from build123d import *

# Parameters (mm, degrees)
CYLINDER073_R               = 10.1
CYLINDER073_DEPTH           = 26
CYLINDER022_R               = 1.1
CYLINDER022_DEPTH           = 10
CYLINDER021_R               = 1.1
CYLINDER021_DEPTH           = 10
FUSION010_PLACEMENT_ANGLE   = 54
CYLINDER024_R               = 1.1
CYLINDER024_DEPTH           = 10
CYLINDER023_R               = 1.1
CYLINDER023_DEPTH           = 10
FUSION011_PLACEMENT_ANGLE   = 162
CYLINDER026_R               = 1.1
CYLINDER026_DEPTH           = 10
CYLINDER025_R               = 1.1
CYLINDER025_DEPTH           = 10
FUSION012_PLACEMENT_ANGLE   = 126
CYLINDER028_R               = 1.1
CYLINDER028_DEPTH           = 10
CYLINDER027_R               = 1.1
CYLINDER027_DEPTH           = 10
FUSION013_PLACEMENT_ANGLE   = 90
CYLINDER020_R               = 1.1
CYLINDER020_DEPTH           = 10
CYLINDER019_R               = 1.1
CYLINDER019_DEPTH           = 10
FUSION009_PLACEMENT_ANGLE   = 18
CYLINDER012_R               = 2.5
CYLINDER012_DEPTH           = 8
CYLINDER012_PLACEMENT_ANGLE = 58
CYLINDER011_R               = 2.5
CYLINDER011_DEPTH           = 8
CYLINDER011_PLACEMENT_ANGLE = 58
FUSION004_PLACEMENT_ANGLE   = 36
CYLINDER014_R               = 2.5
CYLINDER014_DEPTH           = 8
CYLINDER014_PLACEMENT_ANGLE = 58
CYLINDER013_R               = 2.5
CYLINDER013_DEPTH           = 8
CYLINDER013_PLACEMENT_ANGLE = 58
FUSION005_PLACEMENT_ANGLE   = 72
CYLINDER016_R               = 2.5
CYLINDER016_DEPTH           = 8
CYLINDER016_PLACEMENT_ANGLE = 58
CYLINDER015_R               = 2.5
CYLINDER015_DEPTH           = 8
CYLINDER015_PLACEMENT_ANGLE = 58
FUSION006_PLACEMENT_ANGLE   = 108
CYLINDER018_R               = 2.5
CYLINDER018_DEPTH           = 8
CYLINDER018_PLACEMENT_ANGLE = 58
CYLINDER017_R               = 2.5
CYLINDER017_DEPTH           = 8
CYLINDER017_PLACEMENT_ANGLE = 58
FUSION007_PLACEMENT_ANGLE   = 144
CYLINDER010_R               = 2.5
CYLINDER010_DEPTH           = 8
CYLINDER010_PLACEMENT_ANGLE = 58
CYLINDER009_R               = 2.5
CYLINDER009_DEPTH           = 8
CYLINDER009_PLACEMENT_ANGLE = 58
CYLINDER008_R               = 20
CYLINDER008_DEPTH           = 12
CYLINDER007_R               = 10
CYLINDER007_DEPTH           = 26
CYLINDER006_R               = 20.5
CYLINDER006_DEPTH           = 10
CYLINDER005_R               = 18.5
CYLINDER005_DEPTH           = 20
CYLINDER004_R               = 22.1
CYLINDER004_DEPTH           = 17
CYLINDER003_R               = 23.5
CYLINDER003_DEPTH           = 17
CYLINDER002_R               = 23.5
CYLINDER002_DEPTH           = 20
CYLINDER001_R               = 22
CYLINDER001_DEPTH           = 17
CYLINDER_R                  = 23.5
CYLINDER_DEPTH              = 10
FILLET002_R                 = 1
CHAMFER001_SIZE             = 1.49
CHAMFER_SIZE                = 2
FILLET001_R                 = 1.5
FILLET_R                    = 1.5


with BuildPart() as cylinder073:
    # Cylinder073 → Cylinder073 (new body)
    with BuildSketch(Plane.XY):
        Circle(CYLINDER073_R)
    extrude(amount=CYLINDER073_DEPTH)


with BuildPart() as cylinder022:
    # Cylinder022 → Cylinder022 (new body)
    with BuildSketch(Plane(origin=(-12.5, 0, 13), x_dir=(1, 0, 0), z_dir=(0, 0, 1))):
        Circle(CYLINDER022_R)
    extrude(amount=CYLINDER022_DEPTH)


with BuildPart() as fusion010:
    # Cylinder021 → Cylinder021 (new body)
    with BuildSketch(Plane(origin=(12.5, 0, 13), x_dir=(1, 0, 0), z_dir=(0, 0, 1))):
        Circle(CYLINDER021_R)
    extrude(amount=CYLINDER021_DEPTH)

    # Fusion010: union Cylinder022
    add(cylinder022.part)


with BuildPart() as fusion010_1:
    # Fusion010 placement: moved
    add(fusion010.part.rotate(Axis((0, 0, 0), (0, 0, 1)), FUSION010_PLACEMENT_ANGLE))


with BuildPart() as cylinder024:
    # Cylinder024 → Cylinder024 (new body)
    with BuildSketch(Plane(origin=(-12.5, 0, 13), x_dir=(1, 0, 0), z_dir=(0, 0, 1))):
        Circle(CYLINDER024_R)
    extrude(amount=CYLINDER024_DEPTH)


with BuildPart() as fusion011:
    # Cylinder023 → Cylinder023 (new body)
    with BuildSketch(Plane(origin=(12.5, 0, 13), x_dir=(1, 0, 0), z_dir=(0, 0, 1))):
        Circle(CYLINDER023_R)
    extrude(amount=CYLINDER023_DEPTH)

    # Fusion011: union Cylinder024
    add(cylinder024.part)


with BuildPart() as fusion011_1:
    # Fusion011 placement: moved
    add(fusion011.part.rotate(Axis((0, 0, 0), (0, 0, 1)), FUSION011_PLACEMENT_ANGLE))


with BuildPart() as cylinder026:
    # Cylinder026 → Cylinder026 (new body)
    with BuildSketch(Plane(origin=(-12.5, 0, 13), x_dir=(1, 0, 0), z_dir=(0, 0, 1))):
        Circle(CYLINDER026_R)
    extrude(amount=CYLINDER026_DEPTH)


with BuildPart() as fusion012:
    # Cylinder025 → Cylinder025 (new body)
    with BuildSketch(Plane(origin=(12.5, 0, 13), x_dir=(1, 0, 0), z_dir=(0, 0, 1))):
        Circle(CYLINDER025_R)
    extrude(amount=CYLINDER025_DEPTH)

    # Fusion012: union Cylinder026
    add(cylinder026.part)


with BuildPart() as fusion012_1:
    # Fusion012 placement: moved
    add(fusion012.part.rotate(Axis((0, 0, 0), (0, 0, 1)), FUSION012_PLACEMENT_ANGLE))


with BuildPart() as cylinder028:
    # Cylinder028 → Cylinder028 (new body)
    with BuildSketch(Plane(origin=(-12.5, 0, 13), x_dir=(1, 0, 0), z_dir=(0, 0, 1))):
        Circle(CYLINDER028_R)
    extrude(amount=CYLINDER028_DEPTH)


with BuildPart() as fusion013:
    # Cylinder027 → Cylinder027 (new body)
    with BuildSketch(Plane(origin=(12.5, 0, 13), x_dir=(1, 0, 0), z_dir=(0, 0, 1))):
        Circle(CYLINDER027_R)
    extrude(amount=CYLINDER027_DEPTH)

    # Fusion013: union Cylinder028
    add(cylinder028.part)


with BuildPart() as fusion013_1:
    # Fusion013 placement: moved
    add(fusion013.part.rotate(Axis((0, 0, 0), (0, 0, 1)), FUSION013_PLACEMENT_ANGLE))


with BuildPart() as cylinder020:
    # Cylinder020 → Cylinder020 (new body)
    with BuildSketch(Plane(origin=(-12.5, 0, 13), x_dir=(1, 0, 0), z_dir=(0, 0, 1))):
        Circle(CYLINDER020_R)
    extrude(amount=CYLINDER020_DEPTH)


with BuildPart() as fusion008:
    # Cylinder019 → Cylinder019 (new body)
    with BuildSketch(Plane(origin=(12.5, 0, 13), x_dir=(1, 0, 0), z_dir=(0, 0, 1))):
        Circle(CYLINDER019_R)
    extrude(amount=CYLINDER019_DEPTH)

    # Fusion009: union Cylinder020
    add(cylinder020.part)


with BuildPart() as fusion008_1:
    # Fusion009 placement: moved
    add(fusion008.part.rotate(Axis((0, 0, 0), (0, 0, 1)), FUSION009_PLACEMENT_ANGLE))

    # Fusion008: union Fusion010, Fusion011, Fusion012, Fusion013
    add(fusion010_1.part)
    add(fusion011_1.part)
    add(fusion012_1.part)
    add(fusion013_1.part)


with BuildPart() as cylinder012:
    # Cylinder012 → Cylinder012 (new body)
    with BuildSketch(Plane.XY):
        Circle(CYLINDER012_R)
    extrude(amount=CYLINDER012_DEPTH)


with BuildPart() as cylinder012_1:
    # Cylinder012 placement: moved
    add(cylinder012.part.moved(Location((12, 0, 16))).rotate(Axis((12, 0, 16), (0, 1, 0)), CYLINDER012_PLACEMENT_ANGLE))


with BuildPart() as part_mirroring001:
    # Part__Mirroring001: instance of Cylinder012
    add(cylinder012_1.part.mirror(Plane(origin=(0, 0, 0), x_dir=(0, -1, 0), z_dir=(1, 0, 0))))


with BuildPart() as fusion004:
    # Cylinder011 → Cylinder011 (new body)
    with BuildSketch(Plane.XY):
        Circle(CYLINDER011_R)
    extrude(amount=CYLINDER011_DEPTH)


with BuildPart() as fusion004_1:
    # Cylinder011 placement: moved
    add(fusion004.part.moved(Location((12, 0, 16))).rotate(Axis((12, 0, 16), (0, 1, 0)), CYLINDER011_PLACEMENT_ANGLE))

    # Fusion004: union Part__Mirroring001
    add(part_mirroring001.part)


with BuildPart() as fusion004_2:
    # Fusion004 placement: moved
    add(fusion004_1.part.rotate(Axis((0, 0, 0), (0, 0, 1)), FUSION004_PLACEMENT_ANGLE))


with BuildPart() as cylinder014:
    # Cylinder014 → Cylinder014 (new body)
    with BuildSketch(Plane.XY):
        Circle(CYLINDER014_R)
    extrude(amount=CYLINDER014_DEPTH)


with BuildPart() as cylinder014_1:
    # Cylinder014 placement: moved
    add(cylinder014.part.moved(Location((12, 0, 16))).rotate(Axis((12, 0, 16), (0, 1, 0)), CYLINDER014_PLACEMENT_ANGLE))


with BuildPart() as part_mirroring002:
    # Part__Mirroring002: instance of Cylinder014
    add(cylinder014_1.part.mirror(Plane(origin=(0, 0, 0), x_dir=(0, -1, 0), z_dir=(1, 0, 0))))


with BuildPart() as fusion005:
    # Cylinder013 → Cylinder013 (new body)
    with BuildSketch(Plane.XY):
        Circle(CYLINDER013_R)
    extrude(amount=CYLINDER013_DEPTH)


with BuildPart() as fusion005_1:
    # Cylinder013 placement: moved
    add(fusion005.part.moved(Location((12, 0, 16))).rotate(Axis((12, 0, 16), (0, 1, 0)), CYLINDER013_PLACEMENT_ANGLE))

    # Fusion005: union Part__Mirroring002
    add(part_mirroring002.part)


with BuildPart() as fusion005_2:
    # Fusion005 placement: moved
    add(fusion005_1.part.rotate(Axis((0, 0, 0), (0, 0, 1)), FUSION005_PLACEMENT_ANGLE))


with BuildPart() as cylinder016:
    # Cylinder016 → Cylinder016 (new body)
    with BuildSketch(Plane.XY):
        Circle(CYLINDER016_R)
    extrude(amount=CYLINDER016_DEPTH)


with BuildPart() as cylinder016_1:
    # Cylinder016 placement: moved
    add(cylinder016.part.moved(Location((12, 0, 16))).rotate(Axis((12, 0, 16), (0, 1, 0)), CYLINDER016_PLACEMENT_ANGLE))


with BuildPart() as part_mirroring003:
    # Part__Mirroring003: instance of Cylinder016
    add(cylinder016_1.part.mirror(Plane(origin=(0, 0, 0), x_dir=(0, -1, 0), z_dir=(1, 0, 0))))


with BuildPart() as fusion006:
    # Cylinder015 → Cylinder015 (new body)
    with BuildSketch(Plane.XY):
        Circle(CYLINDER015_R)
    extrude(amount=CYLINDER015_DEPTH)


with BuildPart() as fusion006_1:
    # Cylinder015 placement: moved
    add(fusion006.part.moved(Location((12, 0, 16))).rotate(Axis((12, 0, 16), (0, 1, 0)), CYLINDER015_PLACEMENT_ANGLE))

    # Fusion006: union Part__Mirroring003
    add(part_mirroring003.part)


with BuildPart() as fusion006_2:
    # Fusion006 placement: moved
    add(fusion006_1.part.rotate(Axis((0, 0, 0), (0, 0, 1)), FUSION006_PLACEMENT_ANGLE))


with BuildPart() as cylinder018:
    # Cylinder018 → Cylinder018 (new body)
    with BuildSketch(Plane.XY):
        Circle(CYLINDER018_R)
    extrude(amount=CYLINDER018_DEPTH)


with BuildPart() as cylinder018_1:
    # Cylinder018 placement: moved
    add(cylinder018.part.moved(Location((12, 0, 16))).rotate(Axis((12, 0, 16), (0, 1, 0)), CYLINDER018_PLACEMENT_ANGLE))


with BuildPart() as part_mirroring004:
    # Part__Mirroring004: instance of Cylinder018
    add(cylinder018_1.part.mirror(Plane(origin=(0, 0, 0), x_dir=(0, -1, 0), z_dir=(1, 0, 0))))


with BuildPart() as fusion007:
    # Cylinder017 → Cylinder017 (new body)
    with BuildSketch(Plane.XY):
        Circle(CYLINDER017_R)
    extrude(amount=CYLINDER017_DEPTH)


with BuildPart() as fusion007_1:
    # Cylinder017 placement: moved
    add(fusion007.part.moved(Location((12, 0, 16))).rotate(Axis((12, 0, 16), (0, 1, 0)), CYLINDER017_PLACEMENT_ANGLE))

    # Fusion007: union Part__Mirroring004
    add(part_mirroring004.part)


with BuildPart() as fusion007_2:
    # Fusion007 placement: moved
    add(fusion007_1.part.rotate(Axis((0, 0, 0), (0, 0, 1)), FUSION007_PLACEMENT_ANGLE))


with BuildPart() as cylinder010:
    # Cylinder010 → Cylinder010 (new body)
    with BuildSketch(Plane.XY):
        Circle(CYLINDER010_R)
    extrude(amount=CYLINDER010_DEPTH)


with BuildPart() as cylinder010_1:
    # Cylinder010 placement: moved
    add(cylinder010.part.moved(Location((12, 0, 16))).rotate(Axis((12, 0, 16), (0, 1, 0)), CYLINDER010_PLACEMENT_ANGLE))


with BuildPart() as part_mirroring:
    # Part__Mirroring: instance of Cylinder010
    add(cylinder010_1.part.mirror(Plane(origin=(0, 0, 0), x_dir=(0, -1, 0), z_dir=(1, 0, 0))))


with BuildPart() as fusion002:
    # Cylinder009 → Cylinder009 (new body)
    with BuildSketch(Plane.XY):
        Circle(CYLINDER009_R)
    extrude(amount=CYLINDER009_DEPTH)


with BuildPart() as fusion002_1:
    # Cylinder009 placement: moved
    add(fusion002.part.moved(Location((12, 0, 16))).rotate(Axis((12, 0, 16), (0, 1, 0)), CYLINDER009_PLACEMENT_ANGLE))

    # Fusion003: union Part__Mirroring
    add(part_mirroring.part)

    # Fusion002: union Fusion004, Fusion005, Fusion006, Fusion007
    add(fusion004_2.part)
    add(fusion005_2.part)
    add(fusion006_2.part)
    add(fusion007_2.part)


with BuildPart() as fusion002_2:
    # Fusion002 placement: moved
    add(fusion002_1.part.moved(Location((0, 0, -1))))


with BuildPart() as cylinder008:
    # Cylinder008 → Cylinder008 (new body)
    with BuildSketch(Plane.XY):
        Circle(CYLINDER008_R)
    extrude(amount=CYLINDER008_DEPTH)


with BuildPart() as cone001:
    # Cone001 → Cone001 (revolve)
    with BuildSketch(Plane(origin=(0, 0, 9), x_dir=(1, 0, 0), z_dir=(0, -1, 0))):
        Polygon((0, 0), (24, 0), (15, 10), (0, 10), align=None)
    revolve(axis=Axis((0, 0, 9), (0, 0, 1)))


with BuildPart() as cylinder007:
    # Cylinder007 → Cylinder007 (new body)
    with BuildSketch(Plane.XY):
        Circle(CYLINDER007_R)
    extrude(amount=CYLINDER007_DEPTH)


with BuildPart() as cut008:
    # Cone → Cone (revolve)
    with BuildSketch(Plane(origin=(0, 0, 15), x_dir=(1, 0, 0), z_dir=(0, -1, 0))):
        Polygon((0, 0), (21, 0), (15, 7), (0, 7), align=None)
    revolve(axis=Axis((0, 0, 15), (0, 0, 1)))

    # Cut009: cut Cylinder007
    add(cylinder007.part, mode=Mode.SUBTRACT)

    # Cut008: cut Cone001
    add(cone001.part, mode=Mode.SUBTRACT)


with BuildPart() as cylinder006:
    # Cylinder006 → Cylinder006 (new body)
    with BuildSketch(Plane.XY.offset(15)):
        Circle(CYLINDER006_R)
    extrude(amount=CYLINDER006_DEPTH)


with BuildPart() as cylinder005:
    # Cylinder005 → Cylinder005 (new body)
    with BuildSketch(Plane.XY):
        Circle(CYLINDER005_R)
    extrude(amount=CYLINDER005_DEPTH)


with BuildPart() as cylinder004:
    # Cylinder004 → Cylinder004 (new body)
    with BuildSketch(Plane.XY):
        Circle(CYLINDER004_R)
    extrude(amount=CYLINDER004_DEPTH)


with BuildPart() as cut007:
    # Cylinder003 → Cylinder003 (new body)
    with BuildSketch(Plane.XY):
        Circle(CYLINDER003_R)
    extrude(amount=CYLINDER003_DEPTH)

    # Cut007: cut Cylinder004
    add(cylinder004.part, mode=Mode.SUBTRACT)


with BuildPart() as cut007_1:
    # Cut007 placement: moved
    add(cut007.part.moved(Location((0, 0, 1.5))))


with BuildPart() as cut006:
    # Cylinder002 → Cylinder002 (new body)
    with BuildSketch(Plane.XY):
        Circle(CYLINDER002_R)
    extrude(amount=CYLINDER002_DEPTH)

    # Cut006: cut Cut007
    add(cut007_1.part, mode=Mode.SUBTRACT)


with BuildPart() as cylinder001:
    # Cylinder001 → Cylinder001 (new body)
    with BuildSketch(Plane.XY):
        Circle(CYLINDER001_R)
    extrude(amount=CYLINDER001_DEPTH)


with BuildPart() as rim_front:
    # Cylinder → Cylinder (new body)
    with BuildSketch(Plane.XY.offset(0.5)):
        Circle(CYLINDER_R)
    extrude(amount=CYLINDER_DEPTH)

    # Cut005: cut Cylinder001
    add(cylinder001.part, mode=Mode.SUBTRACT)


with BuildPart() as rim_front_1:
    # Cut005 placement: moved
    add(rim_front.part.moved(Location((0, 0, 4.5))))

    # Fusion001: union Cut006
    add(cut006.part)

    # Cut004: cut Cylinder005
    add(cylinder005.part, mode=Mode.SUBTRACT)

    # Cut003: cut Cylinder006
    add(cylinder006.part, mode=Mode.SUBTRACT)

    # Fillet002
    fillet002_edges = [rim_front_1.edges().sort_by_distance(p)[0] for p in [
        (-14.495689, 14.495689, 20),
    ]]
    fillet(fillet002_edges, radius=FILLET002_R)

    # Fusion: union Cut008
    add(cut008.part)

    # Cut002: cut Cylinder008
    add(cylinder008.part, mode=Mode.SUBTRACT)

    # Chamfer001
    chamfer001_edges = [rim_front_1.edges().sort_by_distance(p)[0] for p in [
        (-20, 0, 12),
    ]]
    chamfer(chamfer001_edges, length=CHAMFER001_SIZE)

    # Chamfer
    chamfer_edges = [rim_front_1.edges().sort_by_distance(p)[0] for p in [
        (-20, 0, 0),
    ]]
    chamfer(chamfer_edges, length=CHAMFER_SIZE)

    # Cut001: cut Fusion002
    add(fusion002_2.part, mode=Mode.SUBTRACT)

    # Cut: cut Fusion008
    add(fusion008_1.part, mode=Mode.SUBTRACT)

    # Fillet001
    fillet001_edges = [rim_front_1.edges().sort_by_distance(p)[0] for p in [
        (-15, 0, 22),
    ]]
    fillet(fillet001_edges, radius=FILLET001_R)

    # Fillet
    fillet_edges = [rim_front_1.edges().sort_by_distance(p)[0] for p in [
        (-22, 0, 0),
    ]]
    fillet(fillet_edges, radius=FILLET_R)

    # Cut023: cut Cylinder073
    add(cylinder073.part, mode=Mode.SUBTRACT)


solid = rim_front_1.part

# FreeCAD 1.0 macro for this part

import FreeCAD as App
import Part
import Sketcher


def edges_at(feature, points):
    """Names of the edges that pass closest to the given points."""
    edges = feature.Shape.Edges
    near = lambda p: min(range(len(edges)), key=lambda i: edges[i].distToShape(Part.Vertex(*p))[0])
    return sorted({f"Edge{near(p) + 1}" for p in points})


def add_polygon(sketch, points):
    """Adds a closed chain of lines whose ends are joined by coincident constraints."""
    first, n = sketch.GeometryCount, len(points)
    for a, b in zip(points, points[1:] + points[:1]):
        sketch.addGeometry(Part.LineSegment(App.Vector(*a, 0), App.Vector(*b, 0)), False)
    for i in range(n):
        sketch.addConstraint(Sketcher.Constraint("Coincident", first + i, 2, first + (i + 1) % n, 1))

doc = App.newDocument("Part")
body = doc.addObject("PartDesign::Body", "Body")

sketch1 = body.newObject("Sketcher::SketchObject", "Sketch")
sketch1.AttachmentSupport = (doc.getObject("XY_Plane"), [""])
sketch1.MapMode = "FlatFace"
sketch1.addGeometry(Part.Circle(App.Vector(0, 0, 0), App.Vector(0, 0, 1), 10), False)
sketch1.addConstraint(Sketcher.Constraint("Coincident", 0, 3, -1, 1))
sketch1.addConstraint(Sketcher.Constraint("Diameter", 0, 20.2))
pad1 = body.newObject("PartDesign::Pad", "Pad")
pad1.Profile = sketch1
pad1.Length = 26
body2 = doc.addObject("PartDesign::Body", "Body001")

sketch2 = body2.newObject("Sketcher::SketchObject", "Sketch001")
sketch2.AttachmentSupport = (doc.getObject("XY_Plane001"), [""])
sketch2.MapMode = "FlatFace"
sketch2.AttachmentOffset = App.Placement(App.Vector(0, 0, 13), App.Rotation())
sketch2.addGeometry(Part.Circle(App.Vector(-12.5, 0, 0), App.Vector(0, 0, 1), 1.1), False)
sketch2.addConstraint(Sketcher.Constraint("PointOnObject", 0, 3, -1))
sketch2.addConstraint(Sketcher.Constraint("Diameter", 0, 2.2))
sketch2.addConstraint(Sketcher.Constraint("DistanceX", 0, 3, -1, 1, 12.5))
pad2 = body2.newObject("PartDesign::Pad", "Pad001")
pad2.Profile = sketch2
pad2.Length = 10
body3 = doc.addObject("PartDesign::Body", "Body002")
body3.AllowCompound = True

sketch3 = body3.newObject("Sketcher::SketchObject", "Sketch002")
sketch3.AttachmentSupport = (doc.getObject("XY_Plane002"), [""])
sketch3.MapMode = "FlatFace"
sketch3.AttachmentOffset = App.Placement(App.Vector(0, 0, 13), App.Rotation())
sketch3.addGeometry(Part.Circle(App.Vector(12.5, 0, 0), App.Vector(0, 0, 1), 1.1), False)
sketch3.addConstraint(Sketcher.Constraint("PointOnObject", 0, 3, -1))
sketch3.addConstraint(Sketcher.Constraint("Diameter", 0, 2.2))
sketch3.addConstraint(Sketcher.Constraint("DistanceX", -1, 1, 0, 3, 12.5))
pad3 = body3.newObject("PartDesign::Pad", "Pad002")
pad3.Profile = sketch3
pad3.Length = 10
doc.recompute()

boolean = body3.newObject("PartDesign::Boolean", "Boolean")
boolean.Type = "Fuse"
boolean.addObjects([body2])
body4 = doc.addObject("PartDesign::Body", "Body003")
body4.AllowCompound = True
doc.recompute()

body3.Placement = App.Placement(App.Vector(0, 0, 0), App.Rotation(App.Vector(0, 0, 1), 54))
boolean2 = body4.newObject("PartDesign::Boolean", "Boolean001")
boolean2.Type = "Fuse"
boolean2.addObjects([body3])
body5 = doc.addObject("PartDesign::Body", "Body004")

sketch4 = body5.newObject("Sketcher::SketchObject", "Sketch003")
sketch4.AttachmentSupport = (doc.getObject("XY_Plane004"), [""])
sketch4.MapMode = "FlatFace"
sketch4.AttachmentOffset = App.Placement(App.Vector(0, 0, 13), App.Rotation())
sketch4.addGeometry(Part.Circle(App.Vector(-12.5, 0, 0), App.Vector(0, 0, 1), 1.1), False)
sketch4.addConstraint(Sketcher.Constraint("PointOnObject", 0, 3, -1))
sketch4.addConstraint(Sketcher.Constraint("Diameter", 0, 2.2))
sketch4.addConstraint(Sketcher.Constraint("DistanceX", 0, 3, -1, 1, 12.5))
pad4 = body5.newObject("PartDesign::Pad", "Pad003")
pad4.Profile = sketch4
pad4.Length = 10
body6 = doc.addObject("PartDesign::Body", "Body005")
body6.AllowCompound = True

sketch5 = body6.newObject("Sketcher::SketchObject", "Sketch004")
sketch5.AttachmentSupport = (doc.getObject("XY_Plane005"), [""])
sketch5.MapMode = "FlatFace"
sketch5.AttachmentOffset = App.Placement(App.Vector(0, 0, 13), App.Rotation())
sketch5.addGeometry(Part.Circle(App.Vector(12.5, 0, 0), App.Vector(0, 0, 1), 1.1), False)
sketch5.addConstraint(Sketcher.Constraint("PointOnObject", 0, 3, -1))
sketch5.addConstraint(Sketcher.Constraint("Diameter", 0, 2.2))
sketch5.addConstraint(Sketcher.Constraint("DistanceX", -1, 1, 0, 3, 12.5))
pad5 = body6.newObject("PartDesign::Pad", "Pad004")
pad5.Profile = sketch5
pad5.Length = 10
doc.recompute()

boolean3 = body6.newObject("PartDesign::Boolean", "Boolean002")
boolean3.Type = "Fuse"
boolean3.addObjects([body5])
body7 = doc.addObject("PartDesign::Body", "Body006")
body7.AllowCompound = True
doc.recompute()

body6.Placement = App.Placement(App.Vector(0, 0, 0), App.Rotation(App.Vector(0, 0, 1), 162))
boolean4 = body7.newObject("PartDesign::Boolean", "Boolean003")
boolean4.Type = "Fuse"
boolean4.addObjects([body6])
body8 = doc.addObject("PartDesign::Body", "Body007")

sketch6 = body8.newObject("Sketcher::SketchObject", "Sketch005")
sketch6.AttachmentSupport = (doc.getObject("XY_Plane007"), [""])
sketch6.MapMode = "FlatFace"
sketch6.AttachmentOffset = App.Placement(App.Vector(0, 0, 13), App.Rotation())
sketch6.addGeometry(Part.Circle(App.Vector(-12.5, 0, 0), App.Vector(0, 0, 1), 1.1), False)
sketch6.addConstraint(Sketcher.Constraint("PointOnObject", 0, 3, -1))
sketch6.addConstraint(Sketcher.Constraint("Diameter", 0, 2.2))
sketch6.addConstraint(Sketcher.Constraint("DistanceX", 0, 3, -1, 1, 12.5))
pad6 = body8.newObject("PartDesign::Pad", "Pad005")
pad6.Profile = sketch6
pad6.Length = 10
body9 = doc.addObject("PartDesign::Body", "Body008")
body9.AllowCompound = True

sketch7 = body9.newObject("Sketcher::SketchObject", "Sketch006")
sketch7.AttachmentSupport = (doc.getObject("XY_Plane008"), [""])
sketch7.MapMode = "FlatFace"
sketch7.AttachmentOffset = App.Placement(App.Vector(0, 0, 13), App.Rotation())
sketch7.addGeometry(Part.Circle(App.Vector(12.5, 0, 0), App.Vector(0, 0, 1), 1.1), False)
sketch7.addConstraint(Sketcher.Constraint("PointOnObject", 0, 3, -1))
sketch7.addConstraint(Sketcher.Constraint("Diameter", 0, 2.2))
sketch7.addConstraint(Sketcher.Constraint("DistanceX", -1, 1, 0, 3, 12.5))
pad7 = body9.newObject("PartDesign::Pad", "Pad006")
pad7.Profile = sketch7
pad7.Length = 10
doc.recompute()

boolean5 = body9.newObject("PartDesign::Boolean", "Boolean004")
boolean5.Type = "Fuse"
boolean5.addObjects([body8])
body10 = doc.addObject("PartDesign::Body", "Body009")
body10.AllowCompound = True
doc.recompute()

body9.Placement = App.Placement(App.Vector(0, 0, 0), App.Rotation(App.Vector(0, 0, 1), 126))
boolean6 = body10.newObject("PartDesign::Boolean", "Boolean005")
boolean6.Type = "Fuse"
boolean6.addObjects([body9])
body11 = doc.addObject("PartDesign::Body", "Body010")

sketch8 = body11.newObject("Sketcher::SketchObject", "Sketch007")
sketch8.AttachmentSupport = (doc.getObject("XY_Plane010"), [""])
sketch8.MapMode = "FlatFace"
sketch8.AttachmentOffset = App.Placement(App.Vector(0, 0, 13), App.Rotation())
sketch8.addGeometry(Part.Circle(App.Vector(-12.5, 0, 0), App.Vector(0, 0, 1), 1.1), False)
sketch8.addConstraint(Sketcher.Constraint("PointOnObject", 0, 3, -1))
sketch8.addConstraint(Sketcher.Constraint("Diameter", 0, 2.2))
sketch8.addConstraint(Sketcher.Constraint("DistanceX", 0, 3, -1, 1, 12.5))
pad8 = body11.newObject("PartDesign::Pad", "Pad007")
pad8.Profile = sketch8
pad8.Length = 10
body12 = doc.addObject("PartDesign::Body", "Body011")
body12.AllowCompound = True

sketch9 = body12.newObject("Sketcher::SketchObject", "Sketch008")
sketch9.AttachmentSupport = (doc.getObject("XY_Plane011"), [""])
sketch9.MapMode = "FlatFace"
sketch9.AttachmentOffset = App.Placement(App.Vector(0, 0, 13), App.Rotation())
sketch9.addGeometry(Part.Circle(App.Vector(12.5, 0, 0), App.Vector(0, 0, 1), 1.1), False)
sketch9.addConstraint(Sketcher.Constraint("PointOnObject", 0, 3, -1))
sketch9.addConstraint(Sketcher.Constraint("Diameter", 0, 2.2))
sketch9.addConstraint(Sketcher.Constraint("DistanceX", -1, 1, 0, 3, 12.5))
pad9 = body12.newObject("PartDesign::Pad", "Pad008")
pad9.Profile = sketch9
pad9.Length = 10
doc.recompute()

boolean7 = body12.newObject("PartDesign::Boolean", "Boolean006")
boolean7.Type = "Fuse"
boolean7.addObjects([body11])
body13 = doc.addObject("PartDesign::Body", "Body012")
body13.AllowCompound = True
doc.recompute()

body12.Placement = App.Placement(App.Vector(0, 0, 0), App.Rotation(App.Vector(0, 0, 1), 90))
boolean8 = body13.newObject("PartDesign::Boolean", "Boolean007")
boolean8.Type = "Fuse"
boolean8.addObjects([body12])
body14 = doc.addObject("PartDesign::Body", "Body013")

sketch10 = body14.newObject("Sketcher::SketchObject", "Sketch009")
sketch10.AttachmentSupport = (doc.getObject("XY_Plane013"), [""])
sketch10.MapMode = "FlatFace"
sketch10.AttachmentOffset = App.Placement(App.Vector(0, 0, 13), App.Rotation())
sketch10.addGeometry(Part.Circle(App.Vector(-12.5, 0, 0), App.Vector(0, 0, 1), 1.1), False)
sketch10.addConstraint(Sketcher.Constraint("PointOnObject", 0, 3, -1))
sketch10.addConstraint(Sketcher.Constraint("Diameter", 0, 2.2))
sketch10.addConstraint(Sketcher.Constraint("DistanceX", 0, 3, -1, 1, 12.5))
pad10 = body14.newObject("PartDesign::Pad", "Pad009")
pad10.Profile = sketch10
pad10.Length = 10
body15 = doc.addObject("PartDesign::Body", "Body014")
body15.AllowCompound = True

sketch11 = body15.newObject("Sketcher::SketchObject", "Sketch010")
sketch11.AttachmentSupport = (doc.getObject("XY_Plane014"), [""])
sketch11.MapMode = "FlatFace"
sketch11.AttachmentOffset = App.Placement(App.Vector(0, 0, 13), App.Rotation())
sketch11.addGeometry(Part.Circle(App.Vector(12.5, 0, 0), App.Vector(0, 0, 1), 1.1), False)
sketch11.addConstraint(Sketcher.Constraint("PointOnObject", 0, 3, -1))
sketch11.addConstraint(Sketcher.Constraint("Diameter", 0, 2.2))
sketch11.addConstraint(Sketcher.Constraint("DistanceX", -1, 1, 0, 3, 12.5))
pad11 = body15.newObject("PartDesign::Pad", "Pad010")
pad11.Profile = sketch11
pad11.Length = 10
doc.recompute()

boolean9 = body15.newObject("PartDesign::Boolean", "Boolean008")
boolean9.Type = "Fuse"
boolean9.addObjects([body14])
body16 = doc.addObject("PartDesign::Body", "Body015")
body16.AllowCompound = True
doc.recompute()

body15.Placement = App.Placement(App.Vector(0, 0, 0), App.Rotation(App.Vector(0, 0, 1), 18))
boolean10 = body16.newObject("PartDesign::Boolean", "Boolean009")
boolean10.Type = "Fuse"
boolean10.addObjects([body15])
doc.recompute()

boolean11 = body16.newObject("PartDesign::Boolean", "Boolean010")
boolean11.Type = "Fuse"
boolean11.addObjects([body4])
doc.recompute()

boolean12 = body16.newObject("PartDesign::Boolean", "Boolean011")
boolean12.Type = "Fuse"
boolean12.addObjects([body7])
doc.recompute()

boolean13 = body16.newObject("PartDesign::Boolean", "Boolean012")
boolean13.Type = "Fuse"
boolean13.addObjects([body10])
doc.recompute()

boolean14 = body16.newObject("PartDesign::Boolean", "Boolean013")
boolean14.Type = "Fuse"
boolean14.addObjects([body13])
body17 = doc.addObject("PartDesign::Body", "Body016")

sketch12 = body17.newObject("Sketcher::SketchObject", "Sketch011")
sketch12.AttachmentSupport = (doc.getObject("XY_Plane016"), [""])
sketch12.MapMode = "FlatFace"
sketch12.addGeometry(Part.Circle(App.Vector(0, 0, 0), App.Vector(0, 0, 1), 2.5), False)
sketch12.addConstraint(Sketcher.Constraint("Coincident", 0, 3, -1, 1))
sketch12.addConstraint(Sketcher.Constraint("Diameter", 0, 5.0))
pad12 = body17.newObject("PartDesign::Pad", "Pad011")
pad12.Profile = sketch12
pad12.Length = 8
body18 = doc.addObject("PartDesign::Body", "Body017")
doc.recompute()

body17.Placement = App.Placement(App.Vector(12, 0, 16), App.Rotation(App.Vector(0, 1, 0), 58))
boolean15 = body18.newObject("PartDesign::Boolean", "Boolean014")
boolean15.Type = "Fuse"
boolean15.addObjects([body17])
body19 = doc.addObject("PartDesign::Body", "Body018")
doc.recompute()

mirroring = doc.addObject("Part::Mirroring", "Mirroring")
mirroring.Source = body18
mirroring.Base = App.Vector(0, 0, 0)
mirroring.Normal = App.Vector(1, 0, 0)
body19.BaseFeature = mirroring
doc.recompute()
body20 = doc.addObject("PartDesign::Body", "Body019")

sketch13 = body20.newObject("Sketcher::SketchObject", "Sketch012")
sketch13.AttachmentSupport = (doc.getObject("XY_Plane019"), [""])
sketch13.MapMode = "FlatFace"
sketch13.addGeometry(Part.Circle(App.Vector(0, 0, 0), App.Vector(0, 0, 1), 2.5), False)
sketch13.addConstraint(Sketcher.Constraint("Coincident", 0, 3, -1, 1))
sketch13.addConstraint(Sketcher.Constraint("Diameter", 0, 5.0))
pad13 = body20.newObject("PartDesign::Pad", "Pad012")
pad13.Profile = sketch13
pad13.Length = 8
body21 = doc.addObject("PartDesign::Body", "Body020")
body21.AllowCompound = True
doc.recompute()

body20.Placement = App.Placement(App.Vector(12, 0, 16), App.Rotation(App.Vector(0, 1, 0), 58))
boolean16 = body21.newObject("PartDesign::Boolean", "Boolean015")
boolean16.Type = "Fuse"
boolean16.addObjects([body20])
doc.recompute()

boolean17 = body21.newObject("PartDesign::Boolean", "Boolean016")
boolean17.Type = "Fuse"
boolean17.addObjects([body19])
body22 = doc.addObject("PartDesign::Body", "Body021")
body22.AllowCompound = True
doc.recompute()

body21.Placement = App.Placement(App.Vector(0, 0, 0), App.Rotation(App.Vector(0, 0, 1), 36))
boolean18 = body22.newObject("PartDesign::Boolean", "Boolean017")
boolean18.Type = "Fuse"
boolean18.addObjects([body21])
body23 = doc.addObject("PartDesign::Body", "Body022")

sketch14 = body23.newObject("Sketcher::SketchObject", "Sketch013")
sketch14.AttachmentSupport = (doc.getObject("XY_Plane022"), [""])
sketch14.MapMode = "FlatFace"
sketch14.addGeometry(Part.Circle(App.Vector(0, 0, 0), App.Vector(0, 0, 1), 2.5), False)
sketch14.addConstraint(Sketcher.Constraint("Coincident", 0, 3, -1, 1))
sketch14.addConstraint(Sketcher.Constraint("Diameter", 0, 5.0))
pad14 = body23.newObject("PartDesign::Pad", "Pad013")
pad14.Profile = sketch14
pad14.Length = 8
body24 = doc.addObject("PartDesign::Body", "Body023")
doc.recompute()

body23.Placement = App.Placement(App.Vector(12, 0, 16), App.Rotation(App.Vector(0, 1, 0), 58))
boolean19 = body24.newObject("PartDesign::Boolean", "Boolean018")
boolean19.Type = "Fuse"
boolean19.addObjects([body23])
body25 = doc.addObject("PartDesign::Body", "Body024")
doc.recompute()

mirroring2 = doc.addObject("Part::Mirroring", "Mirroring001")
mirroring2.Source = body24
mirroring2.Base = App.Vector(0, 0, 0)
mirroring2.Normal = App.Vector(1, 0, 0)
body25.BaseFeature = mirroring2
doc.recompute()
body26 = doc.addObject("PartDesign::Body", "Body025")

sketch15 = body26.newObject("Sketcher::SketchObject", "Sketch014")
sketch15.AttachmentSupport = (doc.getObject("XY_Plane025"), [""])
sketch15.MapMode = "FlatFace"
sketch15.addGeometry(Part.Circle(App.Vector(0, 0, 0), App.Vector(0, 0, 1), 2.5), False)
sketch15.addConstraint(Sketcher.Constraint("Coincident", 0, 3, -1, 1))
sketch15.addConstraint(Sketcher.Constraint("Diameter", 0, 5.0))
pad15 = body26.newObject("PartDesign::Pad", "Pad014")
pad15.Profile = sketch15
pad15.Length = 8
body27 = doc.addObject("PartDesign::Body", "Body026")
body27.AllowCompound = True
doc.recompute()

body26.Placement = App.Placement(App.Vector(12, 0, 16), App.Rotation(App.Vector(0, 1, 0), 58))
boolean20 = body27.newObject("PartDesign::Boolean", "Boolean019")
boolean20.Type = "Fuse"
boolean20.addObjects([body26])
doc.recompute()

boolean21 = body27.newObject("PartDesign::Boolean", "Boolean020")
boolean21.Type = "Fuse"
boolean21.addObjects([body25])
body28 = doc.addObject("PartDesign::Body", "Body027")
body28.AllowCompound = True
doc.recompute()

body27.Placement = App.Placement(App.Vector(0, 0, 0), App.Rotation(App.Vector(0, 0, 1), 72))
boolean22 = body28.newObject("PartDesign::Boolean", "Boolean021")
boolean22.Type = "Fuse"
boolean22.addObjects([body27])
body29 = doc.addObject("PartDesign::Body", "Body028")

sketch16 = body29.newObject("Sketcher::SketchObject", "Sketch015")
sketch16.AttachmentSupport = (doc.getObject("XY_Plane028"), [""])
sketch16.MapMode = "FlatFace"
sketch16.addGeometry(Part.Circle(App.Vector(0, 0, 0), App.Vector(0, 0, 1), 2.5), False)
sketch16.addConstraint(Sketcher.Constraint("Coincident", 0, 3, -1, 1))
sketch16.addConstraint(Sketcher.Constraint("Diameter", 0, 5.0))
pad16 = body29.newObject("PartDesign::Pad", "Pad015")
pad16.Profile = sketch16
pad16.Length = 8
body30 = doc.addObject("PartDesign::Body", "Body029")
doc.recompute()

body29.Placement = App.Placement(App.Vector(12, 0, 16), App.Rotation(App.Vector(0, 1, 0), 58))
boolean23 = body30.newObject("PartDesign::Boolean", "Boolean022")
boolean23.Type = "Fuse"
boolean23.addObjects([body29])
body31 = doc.addObject("PartDesign::Body", "Body030")
doc.recompute()

mirroring3 = doc.addObject("Part::Mirroring", "Mirroring002")
mirroring3.Source = body30
mirroring3.Base = App.Vector(0, 0, 0)
mirroring3.Normal = App.Vector(1, 0, 0)
body31.BaseFeature = mirroring3
doc.recompute()
body32 = doc.addObject("PartDesign::Body", "Body031")

sketch17 = body32.newObject("Sketcher::SketchObject", "Sketch016")
sketch17.AttachmentSupport = (doc.getObject("XY_Plane031"), [""])
sketch17.MapMode = "FlatFace"
sketch17.addGeometry(Part.Circle(App.Vector(0, 0, 0), App.Vector(0, 0, 1), 2.5), False)
sketch17.addConstraint(Sketcher.Constraint("Coincident", 0, 3, -1, 1))
sketch17.addConstraint(Sketcher.Constraint("Diameter", 0, 5.0))
pad17 = body32.newObject("PartDesign::Pad", "Pad016")
pad17.Profile = sketch17
pad17.Length = 8
body33 = doc.addObject("PartDesign::Body", "Body032")
body33.AllowCompound = True
doc.recompute()

body32.Placement = App.Placement(App.Vector(12, 0, 16), App.Rotation(App.Vector(0, 1, 0), 58))
boolean24 = body33.newObject("PartDesign::Boolean", "Boolean023")
boolean24.Type = "Fuse"
boolean24.addObjects([body32])
doc.recompute()

boolean25 = body33.newObject("PartDesign::Boolean", "Boolean024")
boolean25.Type = "Fuse"
boolean25.addObjects([body31])
body34 = doc.addObject("PartDesign::Body", "Body033")
body34.AllowCompound = True
doc.recompute()

body33.Placement = App.Placement(App.Vector(0, 0, 0), App.Rotation(App.Vector(0, 0, 1), 108))
boolean26 = body34.newObject("PartDesign::Boolean", "Boolean025")
boolean26.Type = "Fuse"
boolean26.addObjects([body33])
body35 = doc.addObject("PartDesign::Body", "Body034")

sketch18 = body35.newObject("Sketcher::SketchObject", "Sketch017")
sketch18.AttachmentSupport = (doc.getObject("XY_Plane034"), [""])
sketch18.MapMode = "FlatFace"
sketch18.addGeometry(Part.Circle(App.Vector(0, 0, 0), App.Vector(0, 0, 1), 2.5), False)
sketch18.addConstraint(Sketcher.Constraint("Coincident", 0, 3, -1, 1))
sketch18.addConstraint(Sketcher.Constraint("Diameter", 0, 5.0))
pad18 = body35.newObject("PartDesign::Pad", "Pad017")
pad18.Profile = sketch18
pad18.Length = 8
body36 = doc.addObject("PartDesign::Body", "Body035")
doc.recompute()

body35.Placement = App.Placement(App.Vector(12, 0, 16), App.Rotation(App.Vector(0, 1, 0), 58))
boolean27 = body36.newObject("PartDesign::Boolean", "Boolean026")
boolean27.Type = "Fuse"
boolean27.addObjects([body35])
body37 = doc.addObject("PartDesign::Body", "Body036")
doc.recompute()

mirroring4 = doc.addObject("Part::Mirroring", "Mirroring003")
mirroring4.Source = body36
mirroring4.Base = App.Vector(0, 0, 0)
mirroring4.Normal = App.Vector(1, 0, 0)
body37.BaseFeature = mirroring4
doc.recompute()
body38 = doc.addObject("PartDesign::Body", "Body037")

sketch19 = body38.newObject("Sketcher::SketchObject", "Sketch018")
sketch19.AttachmentSupport = (doc.getObject("XY_Plane037"), [""])
sketch19.MapMode = "FlatFace"
sketch19.addGeometry(Part.Circle(App.Vector(0, 0, 0), App.Vector(0, 0, 1), 2.5), False)
sketch19.addConstraint(Sketcher.Constraint("Coincident", 0, 3, -1, 1))
sketch19.addConstraint(Sketcher.Constraint("Diameter", 0, 5.0))
pad19 = body38.newObject("PartDesign::Pad", "Pad018")
pad19.Profile = sketch19
pad19.Length = 8
body39 = doc.addObject("PartDesign::Body", "Body038")
body39.AllowCompound = True
doc.recompute()

body38.Placement = App.Placement(App.Vector(12, 0, 16), App.Rotation(App.Vector(0, 1, 0), 58))
boolean28 = body39.newObject("PartDesign::Boolean", "Boolean027")
boolean28.Type = "Fuse"
boolean28.addObjects([body38])
doc.recompute()

boolean29 = body39.newObject("PartDesign::Boolean", "Boolean028")
boolean29.Type = "Fuse"
boolean29.addObjects([body37])
body40 = doc.addObject("PartDesign::Body", "Body039")
body40.AllowCompound = True
doc.recompute()

body39.Placement = App.Placement(App.Vector(0, 0, 0), App.Rotation(App.Vector(0, 0, 1), 144))
boolean30 = body40.newObject("PartDesign::Boolean", "Boolean029")
boolean30.Type = "Fuse"
boolean30.addObjects([body39])
body41 = doc.addObject("PartDesign::Body", "Body040")

sketch20 = body41.newObject("Sketcher::SketchObject", "Sketch019")
sketch20.AttachmentSupport = (doc.getObject("XY_Plane040"), [""])
sketch20.MapMode = "FlatFace"
sketch20.addGeometry(Part.Circle(App.Vector(0, 0, 0), App.Vector(0, 0, 1), 2.5), False)
sketch20.addConstraint(Sketcher.Constraint("Coincident", 0, 3, -1, 1))
sketch20.addConstraint(Sketcher.Constraint("Diameter", 0, 5.0))
pad20 = body41.newObject("PartDesign::Pad", "Pad019")
pad20.Profile = sketch20
pad20.Length = 8
body42 = doc.addObject("PartDesign::Body", "Body041")
doc.recompute()

body41.Placement = App.Placement(App.Vector(12, 0, 16), App.Rotation(App.Vector(0, 1, 0), 58))
boolean31 = body42.newObject("PartDesign::Boolean", "Boolean030")
boolean31.Type = "Fuse"
boolean31.addObjects([body41])
body43 = doc.addObject("PartDesign::Body", "Body042")
doc.recompute()

mirroring5 = doc.addObject("Part::Mirroring", "Mirroring004")
mirroring5.Source = body42
mirroring5.Base = App.Vector(0, 0, 0)
mirroring5.Normal = App.Vector(1, 0, 0)
body43.BaseFeature = mirroring5
doc.recompute()
body44 = doc.addObject("PartDesign::Body", "Body043")

sketch21 = body44.newObject("Sketcher::SketchObject", "Sketch020")
sketch21.AttachmentSupport = (doc.getObject("XY_Plane043"), [""])
sketch21.MapMode = "FlatFace"
sketch21.addGeometry(Part.Circle(App.Vector(0, 0, 0), App.Vector(0, 0, 1), 2.5), False)
sketch21.addConstraint(Sketcher.Constraint("Coincident", 0, 3, -1, 1))
sketch21.addConstraint(Sketcher.Constraint("Diameter", 0, 5.0))
pad21 = body44.newObject("PartDesign::Pad", "Pad020")
pad21.Profile = sketch21
pad21.Length = 8
body45 = doc.addObject("PartDesign::Body", "Body044")
body45.AllowCompound = True
doc.recompute()

body44.Placement = App.Placement(App.Vector(12, 0, 16), App.Rotation(App.Vector(0, 1, 0), 58))
boolean32 = body45.newObject("PartDesign::Boolean", "Boolean031")
boolean32.Type = "Fuse"
boolean32.addObjects([body44])
doc.recompute()

boolean33 = body45.newObject("PartDesign::Boolean", "Boolean032")
boolean33.Type = "Fuse"
boolean33.addObjects([body43])
doc.recompute()

boolean34 = body45.newObject("PartDesign::Boolean", "Boolean033")
boolean34.Type = "Fuse"
boolean34.addObjects([body22])
doc.recompute()

boolean35 = body45.newObject("PartDesign::Boolean", "Boolean034")
boolean35.Type = "Fuse"
boolean35.addObjects([body28])
doc.recompute()

boolean36 = body45.newObject("PartDesign::Boolean", "Boolean035")
boolean36.Type = "Fuse"
boolean36.addObjects([body34])
doc.recompute()

boolean37 = body45.newObject("PartDesign::Boolean", "Boolean036")
boolean37.Type = "Fuse"
boolean37.addObjects([body40])
body46 = doc.addObject("PartDesign::Body", "Body045")
body46.AllowCompound = True
doc.recompute()

body45.Placement = App.Placement(App.Vector(0, 0, -1), App.Rotation(App.Vector(0, 0, 1), 0))
boolean38 = body46.newObject("PartDesign::Boolean", "Boolean037")
boolean38.Type = "Fuse"
boolean38.addObjects([body45])
body47 = doc.addObject("PartDesign::Body", "Body046")

sketch22 = body47.newObject("Sketcher::SketchObject", "Sketch021")
sketch22.AttachmentSupport = (doc.getObject("XY_Plane046"), [""])
sketch22.MapMode = "FlatFace"
sketch22.addGeometry(Part.Circle(App.Vector(0, 0, 0), App.Vector(0, 0, 1), 20), False)
sketch22.addConstraint(Sketcher.Constraint("Coincident", 0, 3, -1, 1))
sketch22.addConstraint(Sketcher.Constraint("Diameter", 0, 40.0))
pad22 = body47.newObject("PartDesign::Pad", "Pad021")
pad22.Profile = sketch22
pad22.Length = 12
body48 = doc.addObject("PartDesign::Body", "Body047")

sketch23 = body48.newObject("Sketcher::SketchObject", "Sketch022")
sketch23.AttachmentSupport = (doc.getObject("XZ_Plane047"), [""])
sketch23.MapMode = "FlatFace"
add_polygon(sketch23, [(0, 9), (24, 9), (15, 19), (0, 19)])
sketch23.addConstraint(Sketcher.Constraint("Horizontal", 0))
sketch23.addConstraint(Sketcher.Constraint("Horizontal", 2))
sketch23.addConstraint(Sketcher.Constraint("Vertical", 3))
sketch23.addConstraint(Sketcher.Constraint("PointOnObject", 2, 2, -2))
sketch23.addConstraint(Sketcher.Constraint("DistanceX", 0, 1, 0, 2, 24.0))
sketch23.addConstraint(Sketcher.Constraint("DistanceX", 2, 2, 2, 1, 15.0))
sketch23.addConstraint(Sketcher.Constraint("DistanceY", 3, 2, 3, 1, 10.0))
sketch23.addConstraint(Sketcher.Constraint("DistanceY", -1, 1, 0, 2, 9.0))
revolution = body48.newObject("PartDesign::Revolution", "Revolution")
revolution.Profile = sketch23
revolution.ReferenceAxis = (sketch23, ["V_Axis"])
revolution.Angle = 360
body49 = doc.addObject("PartDesign::Body", "Body048")

sketch24 = body49.newObject("Sketcher::SketchObject", "Sketch023")
sketch24.AttachmentSupport = (doc.getObject("XY_Plane048"), [""])
sketch24.MapMode = "FlatFace"
sketch24.addGeometry(Part.Circle(App.Vector(0, 0, 0), App.Vector(0, 0, 1), 10), False)
sketch24.addConstraint(Sketcher.Constraint("Coincident", 0, 3, -1, 1))
sketch24.addConstraint(Sketcher.Constraint("Diameter", 0, 20.0))
pad23 = body49.newObject("PartDesign::Pad", "Pad022")
pad23.Profile = sketch24
pad23.Length = 26
body50 = doc.addObject("PartDesign::Body", "Body049")

sketch25 = body50.newObject("Sketcher::SketchObject", "Sketch024")
sketch25.AttachmentSupport = (doc.getObject("XZ_Plane049"), [""])
sketch25.MapMode = "FlatFace"
add_polygon(sketch25, [(0, 15), (21, 15), (15, 22), (0, 22)])
sketch25.addConstraint(Sketcher.Constraint("Horizontal", 0))
sketch25.addConstraint(Sketcher.Constraint("Horizontal", 2))
sketch25.addConstraint(Sketcher.Constraint("Vertical", 3))
sketch25.addConstraint(Sketcher.Constraint("PointOnObject", 2, 2, -2))
sketch25.addConstraint(Sketcher.Constraint("DistanceX", 0, 1, 0, 2, 21.0))
sketch25.addConstraint(Sketcher.Constraint("DistanceX", 2, 2, 2, 1, 15.0))
sketch25.addConstraint(Sketcher.Constraint("DistanceY", 3, 2, 3, 1, 7.0))
sketch25.addConstraint(Sketcher.Constraint("DistanceY", -1, 1, 0, 2, 15.0))
revolution2 = body50.newObject("PartDesign::Revolution", "Revolution001")
revolution2.Profile = sketch25
revolution2.ReferenceAxis = (sketch25, ["V_Axis"])
revolution2.Angle = 360
doc.recompute()

boolean39 = body50.newObject("PartDesign::Boolean", "Boolean038")
boolean39.Type = "Cut"
boolean39.addObjects([body49])
doc.recompute()

boolean40 = body50.newObject("PartDesign::Boolean", "Boolean039")
boolean40.Type = "Cut"
boolean40.addObjects([body48])
body51 = doc.addObject("PartDesign::Body", "Body050")

sketch26 = body51.newObject("Sketcher::SketchObject", "Sketch025")
sketch26.AttachmentSupport = (doc.getObject("XY_Plane050"), [""])
sketch26.MapMode = "FlatFace"
sketch26.AttachmentOffset = App.Placement(App.Vector(0, 0, 15), App.Rotation())
sketch26.addGeometry(Part.Circle(App.Vector(0, 0, 0), App.Vector(0, 0, 1), 20), False)
sketch26.addConstraint(Sketcher.Constraint("Coincident", 0, 3, -1, 1))
sketch26.addConstraint(Sketcher.Constraint("Diameter", 0, 41.0))
pad24 = body51.newObject("PartDesign::Pad", "Pad023")
pad24.Profile = sketch26
pad24.Length = 10
body52 = doc.addObject("PartDesign::Body", "Body051")

sketch27 = body52.newObject("Sketcher::SketchObject", "Sketch026")
sketch27.AttachmentSupport = (doc.getObject("XY_Plane051"), [""])
sketch27.MapMode = "FlatFace"
sketch27.addGeometry(Part.Circle(App.Vector(0, 0, 0), App.Vector(0, 0, 1), 18), False)
sketch27.addConstraint(Sketcher.Constraint("Coincident", 0, 3, -1, 1))
sketch27.addConstraint(Sketcher.Constraint("Diameter", 0, 37.0))
pad25 = body52.newObject("PartDesign::Pad", "Pad024")
pad25.Profile = sketch27
pad25.Length = 20
body53 = doc.addObject("PartDesign::Body", "Body052")

sketch28 = body53.newObject("Sketcher::SketchObject", "Sketch027")
sketch28.AttachmentSupport = (doc.getObject("XY_Plane052"), [""])
sketch28.MapMode = "FlatFace"
sketch28.addGeometry(Part.Circle(App.Vector(0, 0, 0), App.Vector(0, 0, 1), 22), False)
sketch28.addConstraint(Sketcher.Constraint("Coincident", 0, 3, -1, 1))
sketch28.addConstraint(Sketcher.Constraint("Diameter", 0, 44.2))
pad26 = body53.newObject("PartDesign::Pad", "Pad025")
pad26.Profile = sketch28
pad26.Length = 17
body54 = doc.addObject("PartDesign::Body", "Body053")

sketch29 = body54.newObject("Sketcher::SketchObject", "Sketch028")
sketch29.AttachmentSupport = (doc.getObject("XY_Plane053"), [""])
sketch29.MapMode = "FlatFace"
sketch29.addGeometry(Part.Circle(App.Vector(0, 0, 0), App.Vector(0, 0, 1), 24), False)
sketch29.addConstraint(Sketcher.Constraint("Coincident", 0, 3, -1, 1))
sketch29.addConstraint(Sketcher.Constraint("Diameter", 0, 47.0))
pad27 = body54.newObject("PartDesign::Pad", "Pad026")
pad27.Profile = sketch29
pad27.Length = 17
doc.recompute()

boolean41 = body54.newObject("PartDesign::Boolean", "Boolean040")
boolean41.Type = "Cut"
boolean41.addObjects([body53])
body55 = doc.addObject("PartDesign::Body", "Body054")
doc.recompute()

body54.Placement = App.Placement(App.Vector(0, 0, 1.5), App.Rotation(App.Vector(0, 0, 1), 0))
boolean42 = body55.newObject("PartDesign::Boolean", "Boolean041")
boolean42.Type = "Fuse"
boolean42.addObjects([body54])
body56 = doc.addObject("PartDesign::Body", "Body055")

sketch30 = body56.newObject("Sketcher::SketchObject", "Sketch029")
sketch30.AttachmentSupport = (doc.getObject("XY_Plane055"), [""])
sketch30.MapMode = "FlatFace"
sketch30.addGeometry(Part.Circle(App.Vector(0, 0, 0), App.Vector(0, 0, 1), 24), False)
sketch30.addConstraint(Sketcher.Constraint("Coincident", 0, 3, -1, 1))
sketch30.addConstraint(Sketcher.Constraint("Diameter", 0, 47.0))
pad28 = body56.newObject("PartDesign::Pad", "Pad027")
pad28.Profile = sketch30
pad28.Length = 20
doc.recompute()

boolean43 = body56.newObject("PartDesign::Boolean", "Boolean042")
boolean43.Type = "Cut"
boolean43.addObjects([body55])
body57 = doc.addObject("PartDesign::Body", "Body056")

sketch31 = body57.newObject("Sketcher::SketchObject", "Sketch030")
sketch31.AttachmentSupport = (doc.getObject("XY_Plane056"), [""])
sketch31.MapMode = "FlatFace"
sketch31.addGeometry(Part.Circle(App.Vector(0, 0, 0), App.Vector(0, 0, 1), 22), False)
sketch31.addConstraint(Sketcher.Constraint("Coincident", 0, 3, -1, 1))
sketch31.addConstraint(Sketcher.Constraint("Diameter", 0, 44.0))
pad29 = body57.newObject("PartDesign::Pad", "Pad028")
pad29.Profile = sketch31
pad29.Length = 17
body58 = doc.addObject("PartDesign::Body", "Body057")

sketch32 = body58.newObject("Sketcher::SketchObject", "Sketch031")
sketch32.AttachmentSupport = (doc.getObject("XY_Plane057"), [""])
sketch32.MapMode = "FlatFace"
sketch32.AttachmentOffset = App.Placement(App.Vector(0, 0, 0.5), App.Rotation())
sketch32.addGeometry(Part.Circle(App.Vector(0, 0, 0), App.Vector(0, 0, 1), 24), False)
sketch32.addConstraint(Sketcher.Constraint("Coincident", 0, 3, -1, 1))
sketch32.addConstraint(Sketcher.Constraint("Diameter", 0, 47.0))
pad30 = body58.newObject("PartDesign::Pad", "Pad029")
pad30.Profile = sketch32
pad30.Length = 10
doc.recompute()

boolean44 = body58.newObject("PartDesign::Boolean", "Boolean043")
boolean44.Type = "Cut"
boolean44.addObjects([body57])
body59 = doc.addObject("PartDesign::Body", "Body058")
doc.recompute()

body58.Placement = App.Placement(App.Vector(0, 0, 4.5), App.Rotation(App.Vector(0, 0, 1), 0))
boolean45 = body59.newObject("PartDesign::Boolean", "Boolean044")
boolean45.Type = "Fuse"
boolean45.addObjects([body58])
doc.recompute()

boolean46 = body59.newObject("PartDesign::Boolean", "Boolean045")
boolean46.Type = "Fuse"
boolean46.addObjects([body56])
doc.recompute()

boolean47 = body59.newObject("PartDesign::Boolean", "Boolean046")
boolean47.Type = "Cut"
boolean47.addObjects([body52])
doc.recompute()

boolean48 = body59.newObject("PartDesign::Boolean", "Boolean047")
boolean48.Type = "Cut"
boolean48.addObjects([body51])
doc.recompute()

fillet = body59.newObject("PartDesign::Fillet", "Fillet")
fillet.Base = (boolean48, edges_at(boolean48, [(-20.5, 0, 20)]))
fillet.Radius = 1
doc.recompute()

boolean49 = body59.newObject("PartDesign::Boolean", "Boolean048")
boolean49.Type = "Fuse"
boolean49.addObjects([body50])
doc.recompute()

boolean50 = body59.newObject("PartDesign::Boolean", "Boolean049")
boolean50.Type = "Cut"
boolean50.addObjects([body47])
doc.recompute()

chamfer = body59.newObject("PartDesign::Chamfer", "Chamfer")
chamfer.Base = (boolean50, edges_at(boolean50, [(-20, 0, 12)]))
chamfer.Size = 1.49
doc.recompute()

chamfer2 = body59.newObject("PartDesign::Chamfer", "Chamfer001")
chamfer2.Base = (chamfer, edges_at(chamfer, [(-20, 0, 0)]))
chamfer2.Size = 2
doc.recompute()

boolean51 = body59.newObject("PartDesign::Boolean", "Boolean050")
boolean51.Type = "Cut"
boolean51.addObjects([body46])
doc.recompute()

boolean52 = body59.newObject("PartDesign::Boolean", "Boolean051")
boolean52.Type = "Cut"
boolean52.addObjects([body16])
doc.recompute()

fillet2 = body59.newObject("PartDesign::Fillet", "Fillet001")
fillet2.Base = (boolean52, edges_at(boolean52, [(-15, 0, 22)]))
fillet2.Radius = 1.5
doc.recompute()

fillet3 = body59.newObject("PartDesign::Fillet", "Fillet002")
fillet3.Base = (fillet2, edges_at(fillet2, [(-22, 0, 0)]))
fillet3.Radius = 1.5
doc.recompute()

boolean53 = body59.newObject("PartDesign::Boolean", "Boolean052")
boolean53.Type = "Cut"
boolean53.addObjects([body])
mirroring.Visibility = False
mirroring2.Visibility = False
mirroring3.Visibility = False
mirroring4.Visibility = False
mirroring5.Visibility = False

doc.recompute()
